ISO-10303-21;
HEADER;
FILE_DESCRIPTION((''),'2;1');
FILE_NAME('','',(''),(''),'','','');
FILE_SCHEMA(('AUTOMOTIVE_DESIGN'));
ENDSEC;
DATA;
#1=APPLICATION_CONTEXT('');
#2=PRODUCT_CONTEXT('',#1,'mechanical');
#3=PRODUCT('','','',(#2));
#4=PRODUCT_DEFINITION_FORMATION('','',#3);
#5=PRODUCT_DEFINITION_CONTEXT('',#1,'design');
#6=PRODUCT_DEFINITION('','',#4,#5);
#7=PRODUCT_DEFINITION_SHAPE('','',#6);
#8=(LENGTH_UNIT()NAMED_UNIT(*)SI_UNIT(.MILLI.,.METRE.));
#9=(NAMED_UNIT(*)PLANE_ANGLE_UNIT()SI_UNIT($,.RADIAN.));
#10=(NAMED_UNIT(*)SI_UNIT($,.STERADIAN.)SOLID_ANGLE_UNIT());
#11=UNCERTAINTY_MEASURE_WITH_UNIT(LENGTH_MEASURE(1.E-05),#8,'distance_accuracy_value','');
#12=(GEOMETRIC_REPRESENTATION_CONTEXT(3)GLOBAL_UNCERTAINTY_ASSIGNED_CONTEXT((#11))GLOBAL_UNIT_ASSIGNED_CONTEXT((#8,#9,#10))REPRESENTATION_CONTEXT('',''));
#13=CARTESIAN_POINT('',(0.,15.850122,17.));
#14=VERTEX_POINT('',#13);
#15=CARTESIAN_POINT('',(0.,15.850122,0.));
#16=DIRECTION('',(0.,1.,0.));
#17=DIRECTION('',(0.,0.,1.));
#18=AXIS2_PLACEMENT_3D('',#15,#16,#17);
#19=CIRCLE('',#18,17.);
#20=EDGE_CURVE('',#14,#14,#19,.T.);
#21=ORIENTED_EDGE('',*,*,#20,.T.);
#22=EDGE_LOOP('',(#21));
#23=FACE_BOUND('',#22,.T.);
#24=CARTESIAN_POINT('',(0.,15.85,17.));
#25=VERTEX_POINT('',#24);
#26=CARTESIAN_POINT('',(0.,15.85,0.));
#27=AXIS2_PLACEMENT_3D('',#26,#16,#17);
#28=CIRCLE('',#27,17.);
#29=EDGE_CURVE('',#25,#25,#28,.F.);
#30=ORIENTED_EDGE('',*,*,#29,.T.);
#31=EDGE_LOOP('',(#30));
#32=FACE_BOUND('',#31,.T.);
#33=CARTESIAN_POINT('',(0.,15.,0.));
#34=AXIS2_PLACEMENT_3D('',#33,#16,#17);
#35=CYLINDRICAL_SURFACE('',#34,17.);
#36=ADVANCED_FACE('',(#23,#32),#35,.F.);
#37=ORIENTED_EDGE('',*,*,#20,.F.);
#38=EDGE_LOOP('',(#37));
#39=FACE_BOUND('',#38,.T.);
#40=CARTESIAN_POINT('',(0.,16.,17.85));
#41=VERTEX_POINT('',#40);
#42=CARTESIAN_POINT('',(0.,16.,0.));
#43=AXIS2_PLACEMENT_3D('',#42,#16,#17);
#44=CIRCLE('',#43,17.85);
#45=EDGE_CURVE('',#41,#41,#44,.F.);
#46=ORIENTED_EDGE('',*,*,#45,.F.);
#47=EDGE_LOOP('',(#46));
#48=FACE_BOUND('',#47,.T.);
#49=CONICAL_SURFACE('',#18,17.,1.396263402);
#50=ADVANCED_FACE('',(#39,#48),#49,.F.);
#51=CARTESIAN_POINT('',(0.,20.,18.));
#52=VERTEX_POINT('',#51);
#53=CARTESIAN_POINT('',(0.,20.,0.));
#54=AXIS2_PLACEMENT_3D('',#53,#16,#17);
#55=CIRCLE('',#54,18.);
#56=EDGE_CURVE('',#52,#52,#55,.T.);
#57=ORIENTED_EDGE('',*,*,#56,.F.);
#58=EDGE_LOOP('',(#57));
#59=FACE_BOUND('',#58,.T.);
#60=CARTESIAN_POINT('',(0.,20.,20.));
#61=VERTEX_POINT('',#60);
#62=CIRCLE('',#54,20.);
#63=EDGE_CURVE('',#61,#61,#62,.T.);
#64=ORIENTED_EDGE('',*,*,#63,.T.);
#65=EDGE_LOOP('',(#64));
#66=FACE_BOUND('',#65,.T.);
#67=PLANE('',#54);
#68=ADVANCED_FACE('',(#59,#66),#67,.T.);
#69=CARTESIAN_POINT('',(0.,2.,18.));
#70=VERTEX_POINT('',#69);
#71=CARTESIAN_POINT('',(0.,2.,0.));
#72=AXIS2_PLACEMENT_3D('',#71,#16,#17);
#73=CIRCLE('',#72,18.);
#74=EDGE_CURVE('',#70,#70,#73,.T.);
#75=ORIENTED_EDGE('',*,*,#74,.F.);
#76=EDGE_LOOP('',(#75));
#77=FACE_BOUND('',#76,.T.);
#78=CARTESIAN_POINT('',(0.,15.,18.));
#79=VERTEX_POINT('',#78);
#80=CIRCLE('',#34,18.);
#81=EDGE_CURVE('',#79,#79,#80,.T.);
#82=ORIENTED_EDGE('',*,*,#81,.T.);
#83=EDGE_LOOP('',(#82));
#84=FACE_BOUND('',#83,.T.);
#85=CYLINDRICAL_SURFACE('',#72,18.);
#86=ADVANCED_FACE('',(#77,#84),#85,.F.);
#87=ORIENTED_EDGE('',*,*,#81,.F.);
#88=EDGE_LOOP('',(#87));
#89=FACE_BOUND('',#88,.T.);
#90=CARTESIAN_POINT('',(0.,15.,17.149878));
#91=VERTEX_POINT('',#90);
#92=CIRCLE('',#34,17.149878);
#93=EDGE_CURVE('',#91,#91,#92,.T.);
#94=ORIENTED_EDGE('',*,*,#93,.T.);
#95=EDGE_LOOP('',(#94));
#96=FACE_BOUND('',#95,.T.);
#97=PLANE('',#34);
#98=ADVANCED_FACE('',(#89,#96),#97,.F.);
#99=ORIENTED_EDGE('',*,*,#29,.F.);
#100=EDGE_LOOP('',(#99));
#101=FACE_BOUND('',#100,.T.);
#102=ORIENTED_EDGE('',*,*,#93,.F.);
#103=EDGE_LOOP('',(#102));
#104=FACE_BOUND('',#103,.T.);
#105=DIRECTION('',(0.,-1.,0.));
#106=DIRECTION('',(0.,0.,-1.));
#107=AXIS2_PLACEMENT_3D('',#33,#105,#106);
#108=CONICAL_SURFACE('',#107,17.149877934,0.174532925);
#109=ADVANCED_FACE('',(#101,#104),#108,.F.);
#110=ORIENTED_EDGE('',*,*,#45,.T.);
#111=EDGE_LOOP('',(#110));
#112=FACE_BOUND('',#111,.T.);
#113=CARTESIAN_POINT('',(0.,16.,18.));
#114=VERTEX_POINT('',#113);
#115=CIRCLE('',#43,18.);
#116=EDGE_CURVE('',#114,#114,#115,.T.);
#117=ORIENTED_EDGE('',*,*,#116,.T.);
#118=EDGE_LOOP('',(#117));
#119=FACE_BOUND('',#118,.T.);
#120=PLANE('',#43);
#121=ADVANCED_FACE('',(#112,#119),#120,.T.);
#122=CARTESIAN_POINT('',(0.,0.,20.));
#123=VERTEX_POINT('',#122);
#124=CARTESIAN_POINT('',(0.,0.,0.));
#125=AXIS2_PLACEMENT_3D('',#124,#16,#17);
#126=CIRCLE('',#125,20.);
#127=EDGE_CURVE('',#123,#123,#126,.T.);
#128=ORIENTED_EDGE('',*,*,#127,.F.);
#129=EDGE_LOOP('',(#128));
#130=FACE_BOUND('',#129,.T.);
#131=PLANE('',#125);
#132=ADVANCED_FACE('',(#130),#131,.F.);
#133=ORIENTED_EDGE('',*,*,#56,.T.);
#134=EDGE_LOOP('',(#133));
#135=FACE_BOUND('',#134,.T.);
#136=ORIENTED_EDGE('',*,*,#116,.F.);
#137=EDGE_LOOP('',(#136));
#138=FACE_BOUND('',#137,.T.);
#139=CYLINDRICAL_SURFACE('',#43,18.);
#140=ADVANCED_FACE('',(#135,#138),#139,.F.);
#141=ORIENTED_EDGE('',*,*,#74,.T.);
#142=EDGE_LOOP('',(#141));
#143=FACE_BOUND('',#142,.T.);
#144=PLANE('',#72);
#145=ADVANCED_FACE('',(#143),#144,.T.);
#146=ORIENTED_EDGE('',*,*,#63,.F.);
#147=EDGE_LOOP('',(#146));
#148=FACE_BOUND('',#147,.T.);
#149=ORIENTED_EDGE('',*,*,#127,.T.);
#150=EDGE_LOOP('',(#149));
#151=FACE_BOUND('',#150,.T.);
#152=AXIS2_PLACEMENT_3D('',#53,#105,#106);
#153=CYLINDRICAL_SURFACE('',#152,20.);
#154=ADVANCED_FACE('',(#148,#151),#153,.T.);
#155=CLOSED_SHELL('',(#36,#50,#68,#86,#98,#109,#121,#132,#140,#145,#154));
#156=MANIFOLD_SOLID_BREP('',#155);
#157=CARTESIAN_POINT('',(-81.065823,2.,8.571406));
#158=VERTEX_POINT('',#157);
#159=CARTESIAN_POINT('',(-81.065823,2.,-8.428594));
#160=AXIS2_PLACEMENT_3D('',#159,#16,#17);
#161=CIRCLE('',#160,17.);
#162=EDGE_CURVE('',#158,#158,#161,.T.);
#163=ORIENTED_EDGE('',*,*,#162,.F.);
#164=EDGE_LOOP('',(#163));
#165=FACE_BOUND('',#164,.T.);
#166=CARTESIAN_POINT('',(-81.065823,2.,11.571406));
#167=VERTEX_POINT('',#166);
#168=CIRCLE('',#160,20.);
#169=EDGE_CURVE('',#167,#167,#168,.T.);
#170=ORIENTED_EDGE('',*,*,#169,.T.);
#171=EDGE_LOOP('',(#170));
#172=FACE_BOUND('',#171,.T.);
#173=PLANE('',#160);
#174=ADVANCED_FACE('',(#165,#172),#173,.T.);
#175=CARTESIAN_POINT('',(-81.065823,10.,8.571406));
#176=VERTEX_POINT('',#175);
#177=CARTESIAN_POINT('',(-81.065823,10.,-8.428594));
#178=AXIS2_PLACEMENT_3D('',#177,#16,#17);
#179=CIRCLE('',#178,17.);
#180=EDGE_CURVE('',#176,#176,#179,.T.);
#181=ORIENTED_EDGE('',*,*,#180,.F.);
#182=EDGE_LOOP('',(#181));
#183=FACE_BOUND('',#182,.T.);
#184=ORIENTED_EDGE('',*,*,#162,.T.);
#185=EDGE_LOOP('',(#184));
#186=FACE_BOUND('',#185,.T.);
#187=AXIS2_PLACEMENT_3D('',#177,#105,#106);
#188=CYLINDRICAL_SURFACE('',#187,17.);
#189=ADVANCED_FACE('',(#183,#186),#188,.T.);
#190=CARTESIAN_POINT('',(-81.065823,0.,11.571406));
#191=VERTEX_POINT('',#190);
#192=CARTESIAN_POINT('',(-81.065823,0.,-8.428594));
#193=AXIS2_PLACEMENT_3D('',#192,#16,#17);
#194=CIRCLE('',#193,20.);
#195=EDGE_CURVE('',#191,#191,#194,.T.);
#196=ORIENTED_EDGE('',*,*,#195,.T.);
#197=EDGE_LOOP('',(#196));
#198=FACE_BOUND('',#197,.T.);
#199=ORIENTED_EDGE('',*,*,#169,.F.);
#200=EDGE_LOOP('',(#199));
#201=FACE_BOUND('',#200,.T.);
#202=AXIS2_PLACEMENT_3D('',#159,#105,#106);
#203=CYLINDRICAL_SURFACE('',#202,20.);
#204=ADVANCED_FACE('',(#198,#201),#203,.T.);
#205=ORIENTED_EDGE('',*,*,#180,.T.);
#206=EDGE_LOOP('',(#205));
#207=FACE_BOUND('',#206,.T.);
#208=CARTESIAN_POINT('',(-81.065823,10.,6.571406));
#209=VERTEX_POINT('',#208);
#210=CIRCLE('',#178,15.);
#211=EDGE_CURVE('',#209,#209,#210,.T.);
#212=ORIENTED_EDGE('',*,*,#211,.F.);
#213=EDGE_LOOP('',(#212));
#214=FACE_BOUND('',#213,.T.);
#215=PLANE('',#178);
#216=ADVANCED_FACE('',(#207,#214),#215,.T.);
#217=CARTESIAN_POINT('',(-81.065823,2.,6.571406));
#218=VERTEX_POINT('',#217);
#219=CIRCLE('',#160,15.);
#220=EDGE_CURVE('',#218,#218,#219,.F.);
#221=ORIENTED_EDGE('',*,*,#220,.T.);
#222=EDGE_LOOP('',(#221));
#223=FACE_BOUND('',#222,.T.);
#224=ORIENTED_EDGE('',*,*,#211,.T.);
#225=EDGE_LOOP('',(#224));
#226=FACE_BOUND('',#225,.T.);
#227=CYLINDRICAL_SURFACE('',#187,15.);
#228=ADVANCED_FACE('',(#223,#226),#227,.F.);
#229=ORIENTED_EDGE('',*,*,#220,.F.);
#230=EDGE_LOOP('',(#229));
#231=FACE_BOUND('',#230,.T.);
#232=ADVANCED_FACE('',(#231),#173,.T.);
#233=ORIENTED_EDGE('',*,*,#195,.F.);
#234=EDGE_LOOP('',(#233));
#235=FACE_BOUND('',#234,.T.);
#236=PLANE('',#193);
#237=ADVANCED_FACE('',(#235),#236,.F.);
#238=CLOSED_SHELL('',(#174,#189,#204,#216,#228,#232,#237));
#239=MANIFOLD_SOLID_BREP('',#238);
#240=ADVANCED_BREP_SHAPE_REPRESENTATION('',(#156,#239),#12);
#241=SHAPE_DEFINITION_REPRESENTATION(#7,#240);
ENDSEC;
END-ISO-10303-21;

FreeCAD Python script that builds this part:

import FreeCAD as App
import Part
import Sketcher
from FreeCAD import Vector


def edges_at(feature, points):
    """Names of the edges that pass closest to the given points."""
    edges = feature.Shape.Edges
    near = lambda p: min(range(len(edges)), key=lambda i: edges[i].distToShape(Part.Vertex(*p))[0])
    return sorted({f"Edge{near(p) + 1}" for p in points})

doc = App.newDocument("Part")
body = doc.addObject("PartDesign::Body", "Body")

sketch1 = body.newObject("Sketcher::SketchObject", "Sketch")
sketch1.AttachmentSupport = (doc.getObject("XZ_Plane"), [""])
sketch1.MapMode = "FlatFace"
sketch1.addGeometry(Part.Circle(Vector(0, 0, 0), Vector(0, 0, 1), 20), False)
sketch1.addConstraint([
    Sketcher.Constraint("Coincident", 0, 3, -1, 1),
    Sketcher.Constraint("Diameter", 0, 40.0),
])
pad1 = body.newObject("PartDesign::Pad", "Pad")
pad1.Profile = sketch1
pad1.Length = 20
pad1.Reversed = True

sketch2 = body.newObject("Sketcher::SketchObject", "Sketch001")
sketch2.AttachmentSupport = (doc.getObject("XZ_Plane"), [""])
sketch2.MapMode = "FlatFace"
sketch2.AttachmentOffset = App.Placement(Vector(0, 0, -20), App.Rotation())
sketch2.addGeometry(Part.Circle(Vector(0, 0, 0), Vector(0, 0, 1), 18), False)
sketch2.addConstraint([
    Sketcher.Constraint("Coincident", 0, 3, -1, 1),
    Sketcher.Constraint("Diameter", 0, 36.0),
])
pocket1 = body.newObject("PartDesign::Pocket", "Pocket")
pocket1.Profile = sketch2
pocket1.Length = 4
pocket1.Reversed = True

sketch3 = body.newObject("Sketcher::SketchObject", "Sketch002")
sketch3.AttachmentSupport = (doc.getObject("XZ_Plane"), [""])
sketch3.MapMode = "FlatFace"
sketch3.AttachmentOffset = App.Placement(Vector(0, 0, -16), App.Rotation())
sketch3.addGeometry(Part.Circle(Vector(0, 0, 0), Vector(0, 0, 1), 17), False)
sketch3.addConstraint([
    Sketcher.Constraint("Coincident", 0, 3, -1, 1),
    Sketcher.Constraint("Diameter", 0, 34.0),
])
pocket2 = body.newObject("PartDesign::Pocket", "Pocket001")
pocket2.Profile = sketch3
pocket2.Length = 1
pocket2.Reversed = True

sketch4 = body.newObject("Sketcher::SketchObject", "Sketch003")
sketch4.AttachmentSupport = (doc.getObject("XZ_Plane"), [""])
sketch4.MapMode = "FlatFace"
sketch4.AttachmentOffset = App.Placement(Vector(0, 0, -15), App.Rotation())
sketch4.addGeometry(Part.Circle(Vector(0, 0, 0), Vector(0, 0, 1), 18), False)
sketch4.addConstraint([
    Sketcher.Constraint("Coincident", 0, 3, -1, 1),
    Sketcher.Constraint("Diameter", 0, 36.0),
])
pocket3 = body.newObject("PartDesign::Pocket", "Pocket002")
pocket3.Profile = sketch4
pocket3.Length = 13
pocket3.Reversed = True
doc.recompute()

chamfer = body.newObject("PartDesign::Chamfer", "Chamfer")
chamfer.Base = (pocket3, edges_at(pocket3, [(-17, 16, 0)]))
chamfer.ChamferType = "Two distances"
chamfer.Size = 0.85
chamfer.Size2 = 0.149878
doc.recompute()

chamfer2 = body.newObject("PartDesign::Chamfer", "Chamfer001")
chamfer2.Base = (chamfer, edges_at(chamfer, [(-17, 15, 0)]))
chamfer2.ChamferType = "Two distances"
chamfer2.Size = 0.85
chamfer2.Size2 = 0.149878
body2 = doc.addObject("PartDesign::Body", "Body001")

sketch5 = body2.newObject("Sketcher::SketchObject", "Sketch004")
sketch5.AttachmentSupport = (doc.getObject("XZ_Plane001"), [""])
sketch5.MapMode = "FlatFace"
sketch5.addGeometry(Part.Circle(Vector(-81, -8, 0), Vector(0, 0, 1), 20), False)
sketch5.addConstraint([
    Sketcher.Constraint("Diameter", 0, 40.0),
    Sketcher.Constraint("DistanceX", 0, 3, -1, 1, 81.065823),
    Sketcher.Constraint("DistanceY", 0, 3, -1, 1, 8.428594),
])
pad2 = body2.newObject("PartDesign::Pad", "Pad001")
pad2.Profile = sketch5
pad2.Length = 2
pad2.Reversed = True

sketch6 = body2.newObject("Sketcher::SketchObject", "Sketch005")
sketch6.AttachmentSupport = (doc.getObject("XZ_Plane001"), [""])
sketch6.MapMode = "FlatFace"
sketch6.AttachmentOffset = App.Placement(Vector(0, 0, -2), App.Rotation())
sketch6.addGeometry([
    Part.Circle(Vector(-81, -8, 0), Vector(0, 0, 1), 17),
    Part.Circle(Vector(-81, -8, 0), Vector(0, 0, 1), 15),
], False)
sketch6.addConstraint([
    Sketcher.Constraint("Coincident", 1, 3, 0, 3),
    Sketcher.Constraint("Diameter", 0, 34.0),
    Sketcher.Constraint("Diameter", 1, 30.0),
    Sketcher.Constraint("DistanceX", 0, 3, -1, 1, 81.065823),
    Sketcher.Constraint("DistanceY", 0, 3, -1, 1, 8.428594),
])
pad3 = body2.newObject("PartDesign::Pad", "Pad002")
pad3.Profile = sketch6
pad3.Length = 8
pad3.Reversed = True

doc.recompute()
